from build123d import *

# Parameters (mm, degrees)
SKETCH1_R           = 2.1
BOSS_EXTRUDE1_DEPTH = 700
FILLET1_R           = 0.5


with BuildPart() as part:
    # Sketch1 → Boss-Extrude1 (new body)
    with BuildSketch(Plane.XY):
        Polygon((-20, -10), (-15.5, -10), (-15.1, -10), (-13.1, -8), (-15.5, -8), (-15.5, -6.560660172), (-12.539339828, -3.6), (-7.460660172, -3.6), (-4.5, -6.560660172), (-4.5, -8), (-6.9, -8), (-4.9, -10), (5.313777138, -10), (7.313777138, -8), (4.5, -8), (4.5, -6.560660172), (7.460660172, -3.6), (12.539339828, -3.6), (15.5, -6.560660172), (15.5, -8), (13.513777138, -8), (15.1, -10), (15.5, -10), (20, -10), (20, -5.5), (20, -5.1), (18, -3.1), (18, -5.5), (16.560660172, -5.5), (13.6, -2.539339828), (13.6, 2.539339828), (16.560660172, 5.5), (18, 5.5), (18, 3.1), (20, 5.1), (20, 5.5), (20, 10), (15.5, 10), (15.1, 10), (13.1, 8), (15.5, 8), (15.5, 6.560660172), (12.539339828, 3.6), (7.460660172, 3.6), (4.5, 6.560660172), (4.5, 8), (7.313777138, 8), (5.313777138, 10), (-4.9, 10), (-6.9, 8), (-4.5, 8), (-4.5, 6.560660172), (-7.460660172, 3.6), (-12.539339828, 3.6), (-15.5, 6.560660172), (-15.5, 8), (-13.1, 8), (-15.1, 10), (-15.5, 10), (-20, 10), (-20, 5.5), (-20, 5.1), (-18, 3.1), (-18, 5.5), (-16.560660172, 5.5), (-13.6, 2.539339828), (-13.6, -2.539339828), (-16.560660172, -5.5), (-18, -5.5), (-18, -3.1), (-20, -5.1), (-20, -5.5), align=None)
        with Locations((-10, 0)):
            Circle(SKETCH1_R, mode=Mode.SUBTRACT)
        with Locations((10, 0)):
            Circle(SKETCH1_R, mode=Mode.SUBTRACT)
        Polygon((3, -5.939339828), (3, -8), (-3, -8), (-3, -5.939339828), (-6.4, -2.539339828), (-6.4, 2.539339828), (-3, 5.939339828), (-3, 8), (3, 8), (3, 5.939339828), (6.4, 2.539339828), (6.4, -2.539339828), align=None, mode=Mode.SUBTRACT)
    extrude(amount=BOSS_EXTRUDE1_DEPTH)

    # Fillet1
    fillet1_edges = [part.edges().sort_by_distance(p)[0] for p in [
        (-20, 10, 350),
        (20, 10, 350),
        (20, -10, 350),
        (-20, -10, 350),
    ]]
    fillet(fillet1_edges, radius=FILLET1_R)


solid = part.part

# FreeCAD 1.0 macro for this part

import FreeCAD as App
import Part
import Sketcher

V = App.Vector


def edges_at(feature, points):
    """Names of the edges that pass closest to the given points."""
    edges = feature.Shape.Edges
    near = lambda p: min(range(len(edges)), key=lambda i: edges[i].distToShape(Part.Vertex(*p))[0])
    return sorted({f"Edge{near(p) + 1}" for p in points})


def add_polygon(sketch, points):
    """Adds a closed chain of lines whose ends are joined by coincident constraints."""
    first, n = sketch.GeometryCount, len(points)
    for a, b in zip(points, points[1:] + points[:1]):
        sketch.addGeometry(Part.LineSegment(App.Vector(*a, 0), App.Vector(*b, 0)), False)
    for i in range(n):
        sketch.addConstraint(Sketcher.Constraint("Coincident", first + i, 2, first + (i + 1) % n, 1))

doc = App.newDocument("Part")
params = doc.addObject("Spreadsheet::Sheet", "Params")
for row, (alias, value) in enumerate([
    ("sketch1_diameter", "4.2 mm"),
    ("sketch1_width", "6 mm"),
    ("sketch1_width2", "4.9 mm"),
    ("sketch1_width3", "2.4 mm"),
    ("pad1_length", "700 mm"),
    ("fillet_radius", "0.5 mm"),
], start=1):
    params.set(f"A{row}", alias)
    params.set(f"B{row}", "=" + value)
    params.setAlias(f"B{row}", alias)

body = doc.addObject("PartDesign::Body", "Body")

sketch1 = body.newObject("Sketcher::SketchObject", "Sketch")
sketch1.AttachmentSupport = (doc.getObject("XY_Plane"), [""])
sketch1.MapMode = "FlatFace"
add_polygon(sketch1, [(-20, -10), (-15.1, -10), (-13.1, -8), (-15.5, -8), (-15.5, -6.6), (-12.5, -3.6), (-7.5, -3.6), (-4.5, -6.6), (-4.5, -8), (-6.9, -8), (-4.9, -10), (5.3, -10), (7.3, -8), (4.5, -8), (4.5, -6.6), (7.5, -3.6), (12.5, -3.6), (15.5, -6.6), (15.5, -8), (13.5, -8), (15.1, -10), (20, -10), (20, -5.1), (18, -3.1), (18, -5.5), (16.6, -5.5), (13.6, -2.5), (13.6, 2.5), (16.6, 5.5), (18, 5.5), (18, 3.1), (20, 5.1), (20, 10), (15.1, 10), (13.1, 8), (15.5, 8), (15.5, 6.6), (12.5, 3.6), (7.5, 3.6), (4.5, 6.6), (4.5, 8), (7.3, 8), (5.3, 10), (-4.9, 10), (-6.9, 8), (-4.5, 8), (-4.5, 6.6), (-7.5, 3.6), (-12.5, 3.6), (-15.5, 6.6), (-15.5, 8), (-13.1, 8), (-15.1, 10), (-20, 10), (-20, 5.1), (-18, 3.1), (-18, 5.5), (-16.6, 5.5), (-13.6, 2.5), (-13.6, -2.5), (-16.6, -5.5), (-18, -5.5), (-18, -3.1), (-20, -5.1)])
sketch1.addGeometry(Part.Circle(V(-10, 0, 0), V(0, 0, 1), 2.1), False)
add_polygon(sketch1, [(6.4, -2.5), (3, -5.9), (3, -8), (-3, -8), (-3, -5.9), (-6.4, -2.5), (-6.4, 2.5), (-3, 5.9), (-3, 8), (3, 8), (3, 5.9), (6.4, 2.5)])
sketch1.addGeometry(Part.Circle(V(10, 0, 0), V(0, 0, 1), 2.1), False)
sketch1.addConstraint([
    Sketcher.Constraint("Horizontal", 0),
    Sketcher.Constraint("Horizontal", 2),
    Sketcher.Constraint("Vertical", 3),
    Sketcher.Constraint("Horizontal", 5),
    Sketcher.Constraint("Vertical", 7),
    Sketcher.Constraint("Horizontal", 8),
    Sketcher.Constraint("Horizontal", 10),
    Sketcher.Constraint("Horizontal", 12),
    Sketcher.Constraint("Vertical", 13),
    Sketcher.Constraint("Horizontal", 15),
    Sketcher.Constraint("Vertical", 17),
    Sketcher.Constraint("Horizontal", 18),
    Sketcher.Constraint("Horizontal", 20),
    Sketcher.Constraint("Vertical", 21),
    Sketcher.Constraint("Vertical", 23),
    Sketcher.Constraint("Horizontal", 24),
    Sketcher.Constraint("Vertical", 26),
    Sketcher.Constraint("Horizontal", 28),
    Sketcher.Constraint("Vertical", 29),
    Sketcher.Constraint("Vertical", 31),
    Sketcher.Constraint("Horizontal", 32),
    Sketcher.Constraint("Horizontal", 34),
    Sketcher.Constraint("Vertical", 35),
    Sketcher.Constraint("Horizontal", 37),
    Sketcher.Constraint("Vertical", 39),
    Sketcher.Constraint("Horizontal", 40),
    Sketcher.Constraint("Horizontal", 42),
    Sketcher.Constraint("Horizontal", 44),
    Sketcher.Constraint("Vertical", 45),
    Sketcher.Constraint("Horizontal", 47),
    Sketcher.Constraint("Vertical", 49),
    Sketcher.Constraint("Horizontal", 50),
    Sketcher.Constraint("Horizontal", 52),
    Sketcher.Constraint("Vertical", 53),
    Sketcher.Constraint("Vertical", 55),
    Sketcher.Constraint("Horizontal", 56),
    Sketcher.Constraint("Vertical", 58),
    Sketcher.Constraint("Horizontal", 60),
    Sketcher.Constraint("Vertical", 61),
    Sketcher.Constraint("Vertical", 63),
    Sketcher.Constraint("Vertical", 66),
    Sketcher.Constraint("Horizontal", 67),
    Sketcher.Constraint("Vertical", 68),
    Sketcher.Constraint("Vertical", 70),
    Sketcher.Constraint("Vertical", 72),
    Sketcher.Constraint("Horizontal", 73),
    Sketcher.Constraint("Vertical", 74),
    Sketcher.Constraint("Vertical", 76),
    Sketcher.Constraint("Equal", 64, 77),
    Sketcher.Constraint("Symmetric", 64, 3, 77, 3, -1, 1),
    Sketcher.Constraint("Symmetric", 0, 2, 32, 2, -1, 1),
    Sketcher.Constraint("Symmetric", 1, 2, 33, 2, -1, 1),
    Sketcher.Constraint("Symmetric", 3, 2, 35, 2, -1, 1),
    Sketcher.Constraint("Symmetric", 4, 2, 36, 2, -1, 1),
    Sketcher.Constraint("Symmetric", 6, 2, 38, 2, -1, 1),
    Sketcher.Constraint("Symmetric", 12, 2, 44, 2, -1, 1),
    Sketcher.Constraint("Symmetric", 14, 2, 46, 2, -1, 1),
    Sketcher.Constraint("Symmetric", 16, 2, 48, 2, -1, 1),
    Sketcher.Constraint("Symmetric", 19, 2, 51, 2, -1, 1),
    Sketcher.Constraint("Symmetric", 21, 2, 53, 2, -1, 1),
    Sketcher.Constraint("Symmetric", 22, 2, 54, 2, -1, 1),
    Sketcher.Constraint("Symmetric", 24, 2, 56, 2, -1, 1),
    Sketcher.Constraint("Symmetric", 25, 2, 57, 2, -1, 1),
    Sketcher.Constraint("Symmetric", 27, 2, 59, 2, -1, 1),
    Sketcher.Constraint("Symmetric", 29, 2, 61, 2, -1, 1),
    Sketcher.Constraint("Symmetric", 30, 2, 62, 2, -1, 1),
    Sketcher.Constraint("Symmetric", 65, 2, 71, 2, -1, 1),
    Sketcher.Constraint("Symmetric", 67, 2, 73, 2, -1, 1),
    Sketcher.Constraint("Symmetric", 69, 2, 75, 2, -1, 1),
    Sketcher.Constraint("Symmetric", 7, 2, 12, 2, -2),
    Sketcher.Constraint("Symmetric", 5, 2, 14, 2, -2),
    Sketcher.Constraint("Symmetric", 3, 2, 16, 2, -2),
    Sketcher.Constraint("Symmetric", 0, 2, 19, 2, -2),
    Sketcher.Constraint("Symmetric", 33, 2, 50, 2, -2),
    Sketcher.Constraint("Symmetric", 30, 2, 53, 2, -2),
    Sketcher.Constraint("Symmetric", 29, 2, 54, 2, -2),
    Sketcher.Constraint("Symmetric", 27, 2, 56, 2, -2),
    Sketcher.Constraint("Symmetric", 65, 2, 68, 2, -2),
    Sketcher.Constraint("Symmetric", 11, 2, 40, 2, -1),
    Sketcher.Constraint("Symmetric", 10, 2, 41, 2, -1),
    Sketcher.Constraint("PointOnObject", 64, 3, -1),
    Sketcher.Constraint("Parallel", 1, 4),
    Sketcher.Constraint("Perpendicular", 4, 6),
    Sketcher.Constraint("Parallel", 6, 9),
    Sketcher.Constraint("Perpendicular", 9, 11),
    Sketcher.Constraint("Parallel", 11, 14),
    Sketcher.Constraint("Perpendicular", 14, 16),
    Sketcher.Constraint("Parallel", 16, 22),
    Sketcher.Constraint("Parallel", 22, 25),
    Sketcher.Constraint("Perpendicular", 25, 27),
    Sketcher.Constraint("Parallel", 27, 30),
    Sketcher.Constraint("Perpendicular", 36, 38),
    Sketcher.Constraint("Perpendicular", 41, 43),
    Sketcher.Constraint("Parallel", 43, 46),
    Sketcher.Constraint("Perpendicular", 46, 48),
    Sketcher.Constraint("Perpendicular", 57, 59),
    Sketcher.Constraint("Parallel", 62, 65),
    Sketcher.Constraint("Perpendicular", 65, 69),
    Sketcher.Constraint("Perpendicular", 69, 71),
    Sketcher.Constraint("Perpendicular", 71, 75),
    Sketcher.Constraint("Horizontal", 3, 2, 6, 2),
    Sketcher.Constraint("Horizontal", 2, 2, 7, 2),
    Sketcher.Constraint("Horizontal", 0, 2, 9, 2),
    Sketcher.Constraint("Horizontal", 12, 2, 17, 2),
    Sketcher.Constraint("Horizontal", 18, 2, 66, 2),
    Sketcher.Constraint("Horizontal", 58, 2, 69, 2),
    Sketcher.Constraint("Vertical", 9, 2, 42, 2),
    Sketcher.Constraint("Equal", 2, 8),
    Sketcher.Constraint("Equal", 60, 3),
    Sketcher.Constraint("Equal", 52, 21),
    Sketcher.Constraint("Equal", 50, 23),
    Sketcher.Constraint("Equal", 47, 26),
    Sketcher.Constraint("Equal", 11, 22),
    Sketcher.Constraint("Equal", 16, 25),
    Sketcher.Constraint("Diameter", 64, 4.2),
    Sketcher.Constraint("DistanceX", 67, 2, 67, 1, 6.0),
    Sketcher.Constraint("DistanceX", 0, 1, 0, 2, 4.9),
    Sketcher.Constraint("DistanceX", 2, 2, 2, 1, 2.4),
    Sketcher.Constraint("DistanceX", 64, 3, -1, 1, 10.0),
    Sketcher.Constraint("DistanceY", 0, 2, -1, 1, 10.0),
    Sketcher.Constraint("DistanceY", 1, 2, -1, 1, 8.0),
    Sketcher.Constraint("DistanceX", -1, 1, 20, 2, 20.0),
    Sketcher.Constraint("DistanceY", 4, 2, -1, 1, 3.6),
    Sketcher.Constraint("DistanceX", 69, 2, -1, 1, 6.4),
    Sketcher.Constraint("DistanceX", 5, 1, 5, 2, 5.07868),
    Sketcher.Constraint("DistanceX", 10, 1, 10, 2, 10.213777),
    Sketcher.Constraint("DistanceX", 18, 2, 18, 1, 1.986223),
])
sketch1.setExpression("Constraints[190]", "Params.sketch1_diameter")
sketch1.setExpression("Constraints[191]", "Params.sketch1_width")
sketch1.setExpression("Constraints[192]", "Params.sketch1_width2")
sketch1.setExpression("Constraints[193]", "Params.sketch1_width3")
pad1 = body.newObject("PartDesign::Pad", "Pad")
pad1.Profile = sketch1
pad1.setExpression("Length", "Params.pad1_length")
doc.recompute()

fillet = body.newObject("PartDesign::Fillet", "Fillet")
fillet.Base = (pad1, edges_at(pad1, [
    (-20, 10, 350),
    (20, 10, 350),
    (20, -10, 350),
    (-20, -10, 350),
]))
fillet.setExpression("Radius", "Params.fillet_radius")

doc.recompute()
